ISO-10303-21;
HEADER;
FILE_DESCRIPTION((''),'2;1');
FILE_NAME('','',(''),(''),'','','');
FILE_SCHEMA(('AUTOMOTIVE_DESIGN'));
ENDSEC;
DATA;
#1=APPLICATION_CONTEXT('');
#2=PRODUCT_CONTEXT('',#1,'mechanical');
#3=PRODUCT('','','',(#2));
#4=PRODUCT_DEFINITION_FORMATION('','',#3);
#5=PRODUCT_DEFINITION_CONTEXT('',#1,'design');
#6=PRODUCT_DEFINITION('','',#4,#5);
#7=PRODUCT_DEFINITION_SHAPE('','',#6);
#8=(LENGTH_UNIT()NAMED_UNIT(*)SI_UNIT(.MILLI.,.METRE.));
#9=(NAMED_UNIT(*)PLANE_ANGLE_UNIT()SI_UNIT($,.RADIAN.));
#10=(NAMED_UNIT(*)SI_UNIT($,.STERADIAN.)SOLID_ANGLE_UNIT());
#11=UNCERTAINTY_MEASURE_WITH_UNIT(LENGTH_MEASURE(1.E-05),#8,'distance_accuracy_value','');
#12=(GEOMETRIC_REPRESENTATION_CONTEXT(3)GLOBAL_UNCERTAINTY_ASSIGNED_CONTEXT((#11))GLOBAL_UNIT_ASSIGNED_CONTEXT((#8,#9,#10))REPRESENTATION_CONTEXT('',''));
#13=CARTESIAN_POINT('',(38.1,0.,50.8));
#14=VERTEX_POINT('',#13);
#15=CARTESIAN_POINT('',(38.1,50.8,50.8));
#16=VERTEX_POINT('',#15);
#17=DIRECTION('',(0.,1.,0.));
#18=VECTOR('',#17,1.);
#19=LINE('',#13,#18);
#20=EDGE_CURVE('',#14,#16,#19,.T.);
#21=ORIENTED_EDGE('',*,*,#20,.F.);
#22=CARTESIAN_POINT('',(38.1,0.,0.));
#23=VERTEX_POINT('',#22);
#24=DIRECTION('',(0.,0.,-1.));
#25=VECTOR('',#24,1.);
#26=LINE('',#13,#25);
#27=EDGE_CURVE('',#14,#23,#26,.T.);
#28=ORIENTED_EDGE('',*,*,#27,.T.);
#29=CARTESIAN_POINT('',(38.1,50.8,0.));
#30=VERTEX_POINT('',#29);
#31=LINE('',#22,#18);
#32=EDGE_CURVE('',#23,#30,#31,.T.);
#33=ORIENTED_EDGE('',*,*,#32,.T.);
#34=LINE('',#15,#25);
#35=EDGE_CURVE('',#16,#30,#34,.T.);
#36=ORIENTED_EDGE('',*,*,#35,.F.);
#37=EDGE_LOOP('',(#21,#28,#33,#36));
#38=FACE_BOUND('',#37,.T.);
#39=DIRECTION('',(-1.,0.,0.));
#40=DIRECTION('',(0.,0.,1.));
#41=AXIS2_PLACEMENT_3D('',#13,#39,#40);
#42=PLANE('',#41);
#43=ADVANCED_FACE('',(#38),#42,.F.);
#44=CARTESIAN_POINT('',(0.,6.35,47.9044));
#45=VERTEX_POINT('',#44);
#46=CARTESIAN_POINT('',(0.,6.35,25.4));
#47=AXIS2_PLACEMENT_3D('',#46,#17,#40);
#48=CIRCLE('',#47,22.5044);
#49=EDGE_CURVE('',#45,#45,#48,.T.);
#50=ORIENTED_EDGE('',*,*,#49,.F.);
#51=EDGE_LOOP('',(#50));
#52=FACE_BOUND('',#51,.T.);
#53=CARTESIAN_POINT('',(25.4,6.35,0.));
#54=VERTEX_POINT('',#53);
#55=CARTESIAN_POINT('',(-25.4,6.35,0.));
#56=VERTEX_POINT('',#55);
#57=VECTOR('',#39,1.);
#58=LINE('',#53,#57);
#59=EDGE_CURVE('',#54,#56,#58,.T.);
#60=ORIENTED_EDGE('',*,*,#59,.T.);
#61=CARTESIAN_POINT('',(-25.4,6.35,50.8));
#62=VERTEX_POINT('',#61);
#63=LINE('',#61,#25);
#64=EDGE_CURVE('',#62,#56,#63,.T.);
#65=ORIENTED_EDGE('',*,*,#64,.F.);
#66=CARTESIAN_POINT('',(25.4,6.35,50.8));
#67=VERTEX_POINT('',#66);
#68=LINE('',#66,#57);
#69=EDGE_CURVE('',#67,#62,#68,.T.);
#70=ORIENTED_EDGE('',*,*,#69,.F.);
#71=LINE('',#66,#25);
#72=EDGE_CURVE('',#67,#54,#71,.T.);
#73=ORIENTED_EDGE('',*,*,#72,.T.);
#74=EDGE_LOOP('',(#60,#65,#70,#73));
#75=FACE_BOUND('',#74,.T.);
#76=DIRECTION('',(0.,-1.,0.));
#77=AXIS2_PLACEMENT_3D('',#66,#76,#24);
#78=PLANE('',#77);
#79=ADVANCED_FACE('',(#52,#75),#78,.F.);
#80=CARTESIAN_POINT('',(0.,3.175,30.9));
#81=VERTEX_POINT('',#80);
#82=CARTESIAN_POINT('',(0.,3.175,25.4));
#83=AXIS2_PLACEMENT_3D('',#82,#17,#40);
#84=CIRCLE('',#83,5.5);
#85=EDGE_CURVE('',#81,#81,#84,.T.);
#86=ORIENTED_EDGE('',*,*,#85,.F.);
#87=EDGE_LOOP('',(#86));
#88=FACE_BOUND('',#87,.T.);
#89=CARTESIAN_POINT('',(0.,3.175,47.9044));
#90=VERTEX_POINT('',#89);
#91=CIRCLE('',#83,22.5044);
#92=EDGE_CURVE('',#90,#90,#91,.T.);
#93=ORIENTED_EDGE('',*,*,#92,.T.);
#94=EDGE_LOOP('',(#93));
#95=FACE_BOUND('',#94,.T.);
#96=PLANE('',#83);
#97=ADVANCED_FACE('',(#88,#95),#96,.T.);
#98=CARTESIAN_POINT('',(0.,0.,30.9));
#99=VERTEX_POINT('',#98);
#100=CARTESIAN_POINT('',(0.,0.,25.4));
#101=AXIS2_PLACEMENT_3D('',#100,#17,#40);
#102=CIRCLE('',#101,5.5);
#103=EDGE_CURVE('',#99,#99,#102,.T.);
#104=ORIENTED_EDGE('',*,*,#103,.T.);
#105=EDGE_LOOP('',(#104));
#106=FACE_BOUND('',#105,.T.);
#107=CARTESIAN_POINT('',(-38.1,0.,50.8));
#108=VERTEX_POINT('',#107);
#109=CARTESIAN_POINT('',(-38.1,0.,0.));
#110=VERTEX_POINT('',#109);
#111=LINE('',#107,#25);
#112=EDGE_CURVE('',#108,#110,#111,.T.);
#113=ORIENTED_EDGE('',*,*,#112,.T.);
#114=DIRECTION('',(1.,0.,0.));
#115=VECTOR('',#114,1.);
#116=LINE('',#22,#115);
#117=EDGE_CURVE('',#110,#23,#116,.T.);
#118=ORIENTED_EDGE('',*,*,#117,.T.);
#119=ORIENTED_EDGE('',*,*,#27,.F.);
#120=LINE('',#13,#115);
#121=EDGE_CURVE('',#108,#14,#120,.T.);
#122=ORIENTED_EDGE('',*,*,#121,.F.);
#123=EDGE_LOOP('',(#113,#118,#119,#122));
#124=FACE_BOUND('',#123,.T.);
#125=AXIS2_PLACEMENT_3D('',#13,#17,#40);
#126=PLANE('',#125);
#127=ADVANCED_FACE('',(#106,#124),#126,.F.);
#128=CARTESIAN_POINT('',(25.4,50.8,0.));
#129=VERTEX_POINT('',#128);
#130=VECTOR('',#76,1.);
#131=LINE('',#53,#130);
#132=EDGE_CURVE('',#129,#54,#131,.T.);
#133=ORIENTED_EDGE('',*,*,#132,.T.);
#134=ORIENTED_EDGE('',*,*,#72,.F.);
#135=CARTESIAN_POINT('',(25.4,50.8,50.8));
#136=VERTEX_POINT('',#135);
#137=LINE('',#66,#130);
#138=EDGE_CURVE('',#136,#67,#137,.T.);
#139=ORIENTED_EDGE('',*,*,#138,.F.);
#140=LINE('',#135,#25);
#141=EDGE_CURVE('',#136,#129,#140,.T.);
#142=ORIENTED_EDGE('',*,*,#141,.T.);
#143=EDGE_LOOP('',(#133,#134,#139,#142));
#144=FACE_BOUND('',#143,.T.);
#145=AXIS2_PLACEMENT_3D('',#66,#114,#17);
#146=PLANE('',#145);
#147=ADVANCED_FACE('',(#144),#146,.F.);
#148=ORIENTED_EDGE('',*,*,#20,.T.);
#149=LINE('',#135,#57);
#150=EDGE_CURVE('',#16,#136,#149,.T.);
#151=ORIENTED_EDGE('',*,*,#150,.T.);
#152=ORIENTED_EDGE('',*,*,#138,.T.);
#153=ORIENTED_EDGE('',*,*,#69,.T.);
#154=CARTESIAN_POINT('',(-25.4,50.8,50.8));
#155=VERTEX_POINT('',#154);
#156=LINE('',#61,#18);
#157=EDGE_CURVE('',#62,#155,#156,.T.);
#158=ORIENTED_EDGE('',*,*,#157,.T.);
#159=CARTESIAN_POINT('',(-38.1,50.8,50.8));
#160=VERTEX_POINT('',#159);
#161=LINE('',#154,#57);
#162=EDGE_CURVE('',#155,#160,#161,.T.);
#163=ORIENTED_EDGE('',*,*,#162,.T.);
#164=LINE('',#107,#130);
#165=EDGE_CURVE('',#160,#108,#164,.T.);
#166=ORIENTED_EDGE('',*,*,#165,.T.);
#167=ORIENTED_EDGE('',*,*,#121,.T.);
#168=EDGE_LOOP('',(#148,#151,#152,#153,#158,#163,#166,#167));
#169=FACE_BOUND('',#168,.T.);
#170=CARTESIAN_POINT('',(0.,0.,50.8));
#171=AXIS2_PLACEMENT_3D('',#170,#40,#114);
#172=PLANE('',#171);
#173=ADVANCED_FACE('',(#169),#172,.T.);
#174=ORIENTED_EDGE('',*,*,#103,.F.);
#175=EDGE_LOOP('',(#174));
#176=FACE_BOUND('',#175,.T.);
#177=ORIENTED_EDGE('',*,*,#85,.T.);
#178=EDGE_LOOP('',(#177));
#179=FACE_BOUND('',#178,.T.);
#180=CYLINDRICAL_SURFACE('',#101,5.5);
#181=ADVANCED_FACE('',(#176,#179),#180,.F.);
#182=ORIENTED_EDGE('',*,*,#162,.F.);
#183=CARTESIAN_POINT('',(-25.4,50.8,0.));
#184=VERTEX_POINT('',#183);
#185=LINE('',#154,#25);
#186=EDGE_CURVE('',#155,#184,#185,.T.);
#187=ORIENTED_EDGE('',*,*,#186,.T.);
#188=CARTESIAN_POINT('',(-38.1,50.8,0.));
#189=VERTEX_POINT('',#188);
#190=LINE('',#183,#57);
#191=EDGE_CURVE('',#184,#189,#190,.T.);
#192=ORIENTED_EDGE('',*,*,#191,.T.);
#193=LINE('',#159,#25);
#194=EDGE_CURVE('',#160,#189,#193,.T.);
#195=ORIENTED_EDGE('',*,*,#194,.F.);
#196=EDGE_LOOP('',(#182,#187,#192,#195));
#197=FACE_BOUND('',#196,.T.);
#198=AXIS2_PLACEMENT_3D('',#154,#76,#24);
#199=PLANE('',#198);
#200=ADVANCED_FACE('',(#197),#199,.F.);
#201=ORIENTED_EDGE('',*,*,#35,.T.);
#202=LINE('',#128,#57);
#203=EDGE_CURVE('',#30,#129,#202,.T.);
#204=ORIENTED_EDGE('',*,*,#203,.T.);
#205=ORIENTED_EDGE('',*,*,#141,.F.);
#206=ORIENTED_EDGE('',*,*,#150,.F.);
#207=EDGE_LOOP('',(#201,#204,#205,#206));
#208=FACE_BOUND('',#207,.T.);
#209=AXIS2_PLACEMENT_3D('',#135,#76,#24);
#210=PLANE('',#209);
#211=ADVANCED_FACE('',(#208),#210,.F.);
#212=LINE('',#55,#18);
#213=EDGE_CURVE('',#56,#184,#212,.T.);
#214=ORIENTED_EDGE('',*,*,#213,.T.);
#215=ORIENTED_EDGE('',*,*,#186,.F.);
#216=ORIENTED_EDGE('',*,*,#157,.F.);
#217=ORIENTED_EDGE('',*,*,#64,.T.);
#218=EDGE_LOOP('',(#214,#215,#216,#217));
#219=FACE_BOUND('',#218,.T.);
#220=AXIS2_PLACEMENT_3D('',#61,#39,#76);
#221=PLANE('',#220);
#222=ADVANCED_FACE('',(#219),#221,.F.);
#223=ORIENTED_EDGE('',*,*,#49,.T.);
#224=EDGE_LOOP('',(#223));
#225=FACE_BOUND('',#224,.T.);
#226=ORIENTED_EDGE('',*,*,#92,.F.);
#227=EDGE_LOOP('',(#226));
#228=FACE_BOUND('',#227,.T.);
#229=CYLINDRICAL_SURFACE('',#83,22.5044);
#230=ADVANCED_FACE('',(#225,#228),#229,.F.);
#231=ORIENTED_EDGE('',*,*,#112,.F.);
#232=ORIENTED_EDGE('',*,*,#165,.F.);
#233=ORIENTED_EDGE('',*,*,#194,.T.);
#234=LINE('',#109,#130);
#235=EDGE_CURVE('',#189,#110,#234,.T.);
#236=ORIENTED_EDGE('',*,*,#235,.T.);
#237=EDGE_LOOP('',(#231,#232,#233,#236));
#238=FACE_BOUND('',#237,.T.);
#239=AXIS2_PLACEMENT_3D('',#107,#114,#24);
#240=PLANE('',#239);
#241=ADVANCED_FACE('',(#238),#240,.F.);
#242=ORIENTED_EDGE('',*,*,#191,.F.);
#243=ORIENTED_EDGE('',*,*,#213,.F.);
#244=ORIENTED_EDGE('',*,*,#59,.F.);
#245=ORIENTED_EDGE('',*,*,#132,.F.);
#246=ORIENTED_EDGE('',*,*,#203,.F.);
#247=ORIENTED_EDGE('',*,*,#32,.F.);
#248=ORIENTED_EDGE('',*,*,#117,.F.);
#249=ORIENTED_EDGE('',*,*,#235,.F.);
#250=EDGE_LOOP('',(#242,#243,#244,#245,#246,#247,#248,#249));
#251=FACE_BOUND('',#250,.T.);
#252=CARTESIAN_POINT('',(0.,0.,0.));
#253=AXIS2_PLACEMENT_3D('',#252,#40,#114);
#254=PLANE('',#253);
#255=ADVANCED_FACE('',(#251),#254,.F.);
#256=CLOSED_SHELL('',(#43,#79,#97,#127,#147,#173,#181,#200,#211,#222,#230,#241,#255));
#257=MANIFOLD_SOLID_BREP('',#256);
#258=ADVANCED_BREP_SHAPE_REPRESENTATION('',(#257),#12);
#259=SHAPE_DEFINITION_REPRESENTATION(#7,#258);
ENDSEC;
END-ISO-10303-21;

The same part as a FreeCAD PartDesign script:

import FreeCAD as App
import Part
import Sketcher
Q = App.Units.Quantity


def add_polygon(sketch, points):
    """Adds a closed chain of lines whose ends are joined by coincident constraints."""
    first, n = sketch.GeometryCount, len(points)
    for a, b in zip(points, points[1:] + points[:1]):
        sketch.addGeometry(Part.LineSegment(App.Vector(*a, 0), App.Vector(*b, 0)), False)
    for i in range(n):
        sketch.addConstraint(Sketcher.Constraint("Coincident", first + i, 2, first + (i + 1) % n, 1))

doc = App.newDocument("Part")
body = doc.addObject("PartDesign::Body", "Body")

# Sketch on XY plane
sketch1 = doc.addObject("Sketcher::SketchObject", "Sketch")
body.addObject(sketch1)
sketch1.AttachmentSupport = (doc.XY_Plane, [""])
sketch1.MapMode = "FlatFace"
add_polygon(sketch1, [(-38.1, 0), (38.1, 0), (38.1, 50.8), (25.4, 50.8), (25.4, 6.35), (-25.4, 6.35), (-25.4, 50.8), (-38.1, 50.8)])  # lines 0-7
sketch1.addConstraint([
    Sketcher.Constraint("Horizontal", 0),
    Sketcher.Constraint("Vertical", 1),
    Sketcher.Constraint("Horizontal", 2),
    Sketcher.Constraint("Vertical", 3),
    Sketcher.Constraint("Horizontal", 4),
    Sketcher.Constraint("Vertical", 5),
    Sketcher.Constraint("Horizontal", 6),
    Sketcher.Constraint("Vertical", 7),
    Sketcher.Constraint("Symmetric", 0, 2, 7, 2, -1, 1),
    Sketcher.Constraint("Symmetric", 2, 2, 5, 2, -2),
    Sketcher.Constraint("Equal", 4, 1),
    Sketcher.Constraint("DistanceX", 0, 1, 0, 2, Q("3 in")),
    Sketcher.Constraint("DistanceX", 4, 2, 4, 1, Q("2 in")),
    Sketcher.Constraint("DistanceY", 3, 2, 3, 1, Q("1.75 in")),
])
pad1 = doc.addObject("PartDesign::Pad", "Pad")
body.addObject(pad1)
pad1.Profile = sketch1
pad1.Length = Q("2 in")

# Sketch on XZ plane
sketch2 = doc.addObject("Sketcher::SketchObject", "Sketch001")
body.addObject(sketch2)
sketch2.AttachmentSupport = (doc.XZ_Plane, [""])
sketch2.MapMode = "FlatFace"
sketch2.AttachmentOffset = App.Placement(App.Vector(0, 0, -0.25 * 25.4), App.Rotation())
sketch2.addGeometry(Part.Circle(App.Vector(0, 25.4, 0), App.Vector(0, 0, 1), 22.5044), False)
sketch2.addConstraint([
    Sketcher.Constraint("PointOnObject", 0, 3, -2),
    Sketcher.Constraint("Diameter", 0, Q("1.772 in")),
    Sketcher.Constraint("DistanceY", -1, 1, 0, 3, Q("1 in")),
])
pocket1 = doc.addObject("PartDesign::Pocket", "Pocket")
body.addObject(pocket1)
pocket1.Profile = sketch2
pocket1.Length = Q("0.125 in")
pocket1.Reversed = True

# Sketch on XZ plane
sketch3 = doc.addObject("Sketcher::SketchObject", "Sketch002")
body.addObject(sketch3)
sketch3.AttachmentSupport = (doc.XZ_Plane, [""])
sketch3.MapMode = "FlatFace"
sketch3.AttachmentOffset = App.Placement(App.Vector(0, 0, -0.125 * 25.4), App.Rotation())
sketch3.addGeometry(Part.Circle(App.Vector(0, 25.4, 0), App.Vector(0, 0, 1), 5.5), False)
sketch3.addConstraint([
    Sketcher.Constraint("PointOnObject", 0, 3, -2),
    Sketcher.Constraint("DistanceY", -1, 1, 0, 3, Q("1 in")),
    Sketcher.Constraint("Diameter", 0, 11.0),
])
pocket2 = doc.addObject("PartDesign::Pocket", "Pocket001")
body.addObject(pocket2)
pocket2.Profile = sketch3
pocket2.Type = "ThroughAll"
pocket2.Reversed = True

doc.recompute()
